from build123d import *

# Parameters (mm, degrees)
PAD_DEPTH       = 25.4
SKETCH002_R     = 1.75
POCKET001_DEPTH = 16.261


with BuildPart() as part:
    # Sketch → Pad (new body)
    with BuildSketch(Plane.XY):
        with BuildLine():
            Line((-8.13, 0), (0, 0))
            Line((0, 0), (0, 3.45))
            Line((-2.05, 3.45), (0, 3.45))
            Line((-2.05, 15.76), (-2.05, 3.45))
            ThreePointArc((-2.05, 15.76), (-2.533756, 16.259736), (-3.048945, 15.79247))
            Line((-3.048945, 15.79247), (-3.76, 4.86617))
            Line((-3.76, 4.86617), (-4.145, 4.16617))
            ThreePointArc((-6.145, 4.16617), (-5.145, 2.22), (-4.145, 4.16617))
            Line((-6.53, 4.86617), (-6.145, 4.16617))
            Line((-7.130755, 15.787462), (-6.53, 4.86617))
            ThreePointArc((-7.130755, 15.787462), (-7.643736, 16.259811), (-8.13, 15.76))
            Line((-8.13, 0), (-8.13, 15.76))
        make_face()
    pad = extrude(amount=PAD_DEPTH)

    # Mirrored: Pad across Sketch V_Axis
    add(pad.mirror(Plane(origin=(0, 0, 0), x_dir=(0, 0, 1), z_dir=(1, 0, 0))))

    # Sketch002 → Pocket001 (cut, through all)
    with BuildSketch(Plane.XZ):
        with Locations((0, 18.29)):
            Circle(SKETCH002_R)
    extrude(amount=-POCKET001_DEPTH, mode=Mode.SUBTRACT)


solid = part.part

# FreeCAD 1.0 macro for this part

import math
import FreeCAD as App
import Part
import Sketcher
Q = App.Units.Quantity

doc = App.newDocument("Part")
body = doc.addObject("PartDesign::Body", "Body")

# Sketch on XY plane
sketch1 = body.newObject("Sketcher::SketchObject", "Sketch")
sketch1.AttachmentSupport = (doc.getObject("XY_Plane"), [""])
sketch1.MapMode = "FlatFace"
sketch1.addGeometry([
    Part.LineSegment(App.Vector(-8.13, 0, 0), App.Vector(0, 0, 0)),  # 0
    Part.LineSegment(App.Vector(0, 0, 0), App.Vector(0, 3.45, 0)),  # 1
    Part.LineSegment(App.Vector(0, 3.45, 0), App.Vector(-2.05, 3.45, 0)),  # 2
    Part.LineSegment(App.Vector(-2.05, 3.45, 0), App.Vector(-2.05, 15.76, 0)),  # 3
    Part.ArcOfCircle(Part.Circle(App.Vector(-2.55, 15.76, 0), App.Vector(0, 0, 1), 0.5), math.radians(0.000031), math.radians(176.276562)),  # 4
    Part.LineSegment(App.Vector(-3.048945, 15.79247, 0), App.Vector(-3.76, 4.86617, 0)),  # 5
    Part.LineSegment(App.Vector(-3.76, 4.86617, 0), App.Vector(-4.145, 4.16617, 0)),  # 6
    Part.ArcOfCircle(Part.Circle(App.Vector(-5.145, 3.45, 0), App.Vector(0, 0, 1), 1.23), math.radians(144.390893), math.radians(395.609107)),  # 7
    Part.LineSegment(App.Vector(-6.145, 4.16617, 0), App.Vector(-6.53, 4.86617, 0)),  # 8
    Part.LineSegment(App.Vector(-6.53, 4.86617, 0), App.Vector(-7.130755, 15.787462, 0)),  # 9
    Part.ArcOfCircle(Part.Circle(App.Vector(-7.63, 15.76, 0), App.Vector(0, 0, 1), 0.5), math.radians(3.148517), math.radians(179.999982)),  # 10
    Part.LineSegment(App.Vector(-8.13, 15.76, 0), App.Vector(-8.13, 0, 0)),  # 11
], False)
sketch1.addConstraint([
    Sketcher.Constraint("Coincident", 0, 2, 1, 1),
    Sketcher.Constraint("Coincident", 1, 2, 2, 1),
    Sketcher.Constraint("Coincident", 2, 2, 3, 1),
    Sketcher.Constraint("Tangent", 3, 2, 4, 1),
    Sketcher.Constraint("Tangent", 4, 2, 5, 1),
    Sketcher.Constraint("Coincident", 5, 2, 6, 1),
    Sketcher.Constraint("Coincident", 6, 2, 7, 2),
    Sketcher.Constraint("Coincident", 7, 1, 8, 1),
    Sketcher.Constraint("Coincident", 8, 2, 9, 1),
    Sketcher.Constraint("Tangent", 9, 2, 10, 1),
    Sketcher.Constraint("Tangent", 10, 2, 11, 1),
    Sketcher.Constraint("Coincident", 11, 2, 0, 1),
    Sketcher.Constraint("Horizontal", 0),
    Sketcher.Constraint("Vertical", 1),
    Sketcher.Constraint("Horizontal", 2),
    Sketcher.Constraint("Vertical", 3),
    Sketcher.Constraint("Vertical", 11),
    Sketcher.Constraint("Coincident", 0, 2, -1, 1),
    Sketcher.Constraint("Equal", 4, 10),
    Sketcher.Constraint("Horizontal", 4, 3, 10, 3),
    Sketcher.Constraint("Horizontal", 7, 3, 1, 2),
    Sketcher.Constraint("Horizontal", 6, 2, 7, 1),
    Sketcher.Constraint("Horizontal", 5, 2, 8, 2),
    Sketcher.Constraint("Equal", 6, 8),
    Sketcher.Constraint("Radius", 4, Q("0.5 mm")),
    Sketcher.Constraint("Radius", 7, Q("1.23 mm")),
    Sketcher.Constraint("DistanceX", 7, 3, 6, 2, Q("1 mm")),
    Sketcher.Constraint("DistanceX", 0, 1, 0, 2, Q("8.13 mm")),
    Sketcher.Constraint("DistanceX", 2, 2, 2, 1, Q("2.05 mm")),
    Sketcher.Constraint("DistanceY", 1, 1, 1, 2, Q("3.45 mm")),
    Sketcher.Constraint("DistanceY", 3, 1, 3, 2, Q("12.31 mm")),
    Sketcher.Constraint("DistanceY", 6, 2, 5, 2, Q("0.7 mm")),
    Sketcher.Constraint("DistanceX", 11, 2, 8, 2, Q("1.6 mm")),
    Sketcher.Constraint("DistanceX", 5, 2, -1, 1, Q("3.76 mm")),
])
pad1 = body.newObject("PartDesign::Pad", "Pad")
pad1.Profile = sketch1
pad1.Length = 25.4
doc.recompute()

mirrored = body.newObject("PartDesign::Mirrored", "Mirrored")
mirrored.Originals = [pad1]
mirrored.MirrorPlane = (doc.getObject("YZ_Plane"), [""])
body.Tip = mirrored

# Sketch on XZ plane
sketch2 = body.newObject("Sketcher::SketchObject", "Sketch001")
sketch2.AttachmentSupport = (doc.getObject("XZ_Plane"), [""])
sketch2.MapMode = "FlatFace"
sketch2.addGeometry(Part.Circle(App.Vector(0, 18.29, 0), App.Vector(0, 0, 1), 1.75), False)
sketch2.addConstraint([
    Sketcher.Constraint("PointOnObject", 0, 3, -2),
    Sketcher.Constraint("Diameter", 0, Q("3.5 mm")),
    Sketcher.Constraint("DistanceY", -1, 1, 0, 3, Q("18.29 mm")),
])
pocket1 = body.newObject("PartDesign::Pocket", "Pocket")
pocket1.Profile = sketch2
pocket1.Type = "ThroughAll"

doc.recompute()
